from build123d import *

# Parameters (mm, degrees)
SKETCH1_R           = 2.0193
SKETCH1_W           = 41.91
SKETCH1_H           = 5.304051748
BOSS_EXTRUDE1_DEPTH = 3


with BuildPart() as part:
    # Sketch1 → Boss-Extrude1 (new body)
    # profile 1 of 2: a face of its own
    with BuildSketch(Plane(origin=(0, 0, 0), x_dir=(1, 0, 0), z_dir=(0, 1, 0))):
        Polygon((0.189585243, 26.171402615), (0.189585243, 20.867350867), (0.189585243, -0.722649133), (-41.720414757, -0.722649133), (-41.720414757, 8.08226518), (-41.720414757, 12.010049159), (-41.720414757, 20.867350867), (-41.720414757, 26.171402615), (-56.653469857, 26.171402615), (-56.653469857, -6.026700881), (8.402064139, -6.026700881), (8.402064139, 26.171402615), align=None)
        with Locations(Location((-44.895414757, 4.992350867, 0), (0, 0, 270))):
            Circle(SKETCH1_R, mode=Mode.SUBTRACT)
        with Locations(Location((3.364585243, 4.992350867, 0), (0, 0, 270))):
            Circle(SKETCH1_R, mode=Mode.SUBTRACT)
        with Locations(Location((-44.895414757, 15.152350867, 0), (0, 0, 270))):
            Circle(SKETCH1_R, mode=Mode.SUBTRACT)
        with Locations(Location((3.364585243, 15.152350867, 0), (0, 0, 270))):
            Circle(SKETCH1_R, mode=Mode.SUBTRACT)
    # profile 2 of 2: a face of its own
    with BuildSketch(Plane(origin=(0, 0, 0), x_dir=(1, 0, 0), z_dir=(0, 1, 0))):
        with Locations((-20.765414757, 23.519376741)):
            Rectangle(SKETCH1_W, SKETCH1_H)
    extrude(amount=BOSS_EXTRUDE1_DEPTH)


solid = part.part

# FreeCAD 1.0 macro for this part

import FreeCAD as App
import Part
import Sketcher
from FreeCAD import Vector
Q = App.Units.Quantity

doc = App.newDocument("Part")
body = doc.addObject("PartDesign::Body", "Body")

sketch1 = body.newObject("Sketcher::SketchObject", "Sketch")
sketch1.AttachmentSupport = (doc.getObject("XZ_Plane"), [""])
sketch1.MapMode = "FlatFace"
sketch1.addGeometry([
    Part.LineSegment(Vector(8.4, -26.2, 0), Vector(-56.7, -26.2, 0)),
    Part.LineSegment(Vector(-56.7, -26.2, 0), Vector(-56.7, 6, 0)),
    Part.LineSegment(Vector(-56.7, 6, 0), Vector(8.4, 6, 0)),
    Part.LineSegment(Vector(8.4, 6, 0), Vector(8.4, -26.2, 0)),
    Part.LineSegment(Vector(0.2, -20.9, 0), Vector(0.2, 0.7, 0)),
    Part.LineSegment(Vector(0.2, 0.7, 0), Vector(-41.7, 0.7, 0)),
    Part.LineSegment(Vector(-41.7, 0.7, 0), Vector(-41.7, -20.9, 0)),
    Part.LineSegment(Vector(-41.7, -20.9, 0), Vector(0.2, -20.9, 0)),
    Part.Circle(Vector(-44.9, -5, 0), Vector(0, 0, 1), 2),
    Part.Circle(Vector(3.4, -5, 0), Vector(0, 0, 1), 2),
    Part.Circle(Vector(-44.9, -15.2, 0), Vector(0, 0, 1), 2),
    Part.Circle(Vector(3.4, -15.2, 0), Vector(0, 0, 1), 2),
], False)
sketch1.addConstraint([
    Sketcher.Constraint("Coincident", 0, 2, 1, 1),
    Sketcher.Constraint("Coincident", 1, 2, 2, 1),
    Sketcher.Constraint("Coincident", 2, 2, 3, 1),
    Sketcher.Constraint("Coincident", 3, 2, 0, 1),
    Sketcher.Constraint("Coincident", 4, 2, 5, 1),
    Sketcher.Constraint("Coincident", 5, 2, 6, 1),
    Sketcher.Constraint("Coincident", 6, 2, 7, 1),
    Sketcher.Constraint("Coincident", 7, 2, 4, 1),
    Sketcher.Constraint("Horizontal", 0),
    Sketcher.Constraint("Vertical", 1),
    Sketcher.Constraint("Horizontal", 2),
    Sketcher.Constraint("Vertical", 3),
    Sketcher.Constraint("Vertical", 4),
    Sketcher.Constraint("Horizontal", 5),
    Sketcher.Constraint("Vertical", 6),
    Sketcher.Constraint("Horizontal", 7),
    Sketcher.Constraint("Equal", 8, 9),
    Sketcher.Constraint("Equal", 9, 10),
    Sketcher.Constraint("Equal", 10, 11),
    Sketcher.Constraint("Horizontal", 8, 3, 9, 3),
    Sketcher.Constraint("Horizontal", 10, 3, 11, 3),
    Sketcher.Constraint("Vertical", 8, 3, 10, 3),
    Sketcher.Constraint("Vertical", 9, 3, 11, 3),
    Sketcher.Constraint("Diameter", 8, Q("0.159 in")),
    Sketcher.Constraint("DistanceX", 5, 2, 5, 1, Q("1.65 in")),
    Sketcher.Constraint("DistanceY", 4, 1, 4, 2, Q("0.85 in")),
    Sketcher.Constraint("DistanceX", 8, 3, 9, 3, Q("1.9 in")),
    Sketcher.Constraint("DistanceY", 10, 3, 8, 3, Q("0.4 in")),
    Sketcher.Constraint("DistanceX", 4, 2, 9, 3, Q("0.125 in")),
    Sketcher.Constraint("DistanceY", 9, 3, 4, 2, Q("0.225 in")),
    Sketcher.Constraint("DistanceY", -1, 1, 1, 2, 6.026701),
    Sketcher.Constraint("DistanceX", 0, 2, 0, 1, 65.055534),
    Sketcher.Constraint("DistanceY", 1, 1, 1, 2, 32.198103),
    Sketcher.Constraint("DistanceY", 8, 3, -1, 1, 4.992351),
    Sketcher.Constraint("DistanceX", 0, 2, -1, 1, 56.65347),
    Sketcher.Constraint("DistanceX", 9, 3, 2, 2, 5.037479),
])
pad1 = body.newObject("PartDesign::Pad", "Pad")
pad1.Profile = sketch1
pad1.Length = 3
pad1.Reversed = True

doc.recompute()
